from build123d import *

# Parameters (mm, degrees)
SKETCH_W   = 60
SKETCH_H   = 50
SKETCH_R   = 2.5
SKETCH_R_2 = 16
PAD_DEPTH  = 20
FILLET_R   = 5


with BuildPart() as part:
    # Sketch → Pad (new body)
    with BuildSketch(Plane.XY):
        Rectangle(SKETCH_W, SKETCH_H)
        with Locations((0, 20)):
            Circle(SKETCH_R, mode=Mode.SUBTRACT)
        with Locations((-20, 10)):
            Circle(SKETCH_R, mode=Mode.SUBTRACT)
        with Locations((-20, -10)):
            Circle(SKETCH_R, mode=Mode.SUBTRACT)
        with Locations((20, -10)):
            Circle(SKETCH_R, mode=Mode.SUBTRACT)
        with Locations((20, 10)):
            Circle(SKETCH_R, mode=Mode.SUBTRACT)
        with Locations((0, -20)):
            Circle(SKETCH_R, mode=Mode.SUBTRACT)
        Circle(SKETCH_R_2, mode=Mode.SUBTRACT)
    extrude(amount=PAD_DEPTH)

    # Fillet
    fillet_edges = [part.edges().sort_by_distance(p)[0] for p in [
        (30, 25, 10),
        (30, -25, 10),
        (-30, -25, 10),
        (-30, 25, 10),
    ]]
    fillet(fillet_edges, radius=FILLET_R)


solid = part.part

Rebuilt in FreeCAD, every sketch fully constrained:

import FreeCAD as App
import Part
import Sketcher
Q = App.Units.Quantity


def edges_at(feature, points):
    """Names of the edges that pass closest to the given points."""
    edges = feature.Shape.Edges
    near = lambda p: min(range(len(edges)), key=lambda i: edges[i].distToShape(Part.Vertex(*p))[0])
    return sorted({f"Edge{near(p) + 1}" for p in points})


def add_polygon(sketch, points):
    """Adds a closed chain of lines whose ends are joined by coincident constraints."""
    first, n = sketch.GeometryCount, len(points)
    for a, b in zip(points, points[1:] + points[:1]):
        sketch.addGeometry(Part.LineSegment(App.Vector(*a, 0), App.Vector(*b, 0)), False)
    for i in range(n):
        sketch.addConstraint(Sketcher.Constraint("Coincident", first + i, 2, first + (i + 1) % n, 1))

doc = App.newDocument("Part")
params = doc.addObject("Spreadsheet::Sheet", "Params")
for row, (alias, value) in enumerate([
    ("sketch1_diameter", "5 mm"),
    ("sketch1_diameter2", "32 mm"),
    ("sketch1_width", "60 mm"),
    ("sketch1_height", "50 mm"),
    ("pad1_length", "20 mm"),
    ("fillet_radius", "5 mm"),
], start=1):
    params.set(f"A{row}", alias)
    params.set(f"B{row}", "=" + value)
    params.setAlias(f"B{row}", alias)

body = doc.addObject("PartDesign::Body", "Body")

sketch1 = doc.addObject("Sketcher::SketchObject", "Sketch")
body.addObject(sketch1)
sketch1.AttachmentSupport = (doc.XY_Plane, [""])
sketch1.MapMode = "FlatFace"
add_polygon(sketch1, [(-30, 25), (-30, -25), (30, -25), (30, 25)])
sketch1.addGeometry(Part.Circle(App.Vector(-20, -10, 0), App.Vector(0, 0, 1), 2.5), False)
sketch1.addGeometry(Part.Circle(App.Vector(0, -20, 0), App.Vector(0, 0, 1), 2.5), False)
sketch1.addGeometry(Part.Circle(App.Vector(20, -10, 0), App.Vector(0, 0, 1), 2.5), False)
sketch1.addGeometry(Part.Circle(App.Vector(-20, 10, 0), App.Vector(0, 0, 1), 2.5), False)
sketch1.addGeometry(Part.Circle(App.Vector(0, 0, 0), App.Vector(0, 0, 1), 16), False)
sketch1.addGeometry(Part.Circle(App.Vector(20, 10, 0), App.Vector(0, 0, 1), 2.5), False)
sketch1.addGeometry(Part.Circle(App.Vector(0, 20, 0), App.Vector(0, 0, 1), 2.5), False)
sketch1.addConstraint(Sketcher.Constraint("Vertical", 0))
sketch1.addConstraint(Sketcher.Constraint("Horizontal", 1))
sketch1.addConstraint(Sketcher.Constraint("Vertical", 2))
sketch1.addConstraint(Sketcher.Constraint("Horizontal", 3))
sketch1.addConstraint(Sketcher.Constraint("Coincident", 8, 3, -1, 1))
sketch1.addConstraint(Sketcher.Constraint("Equal", 4, 5))
sketch1.addConstraint(Sketcher.Constraint("Equal", 5, 6))
sketch1.addConstraint(Sketcher.Constraint("Equal", 6, 7))
sketch1.addConstraint(Sketcher.Constraint("Equal", 7, 9))
sketch1.addConstraint(Sketcher.Constraint("Equal", 9, 10))
sketch1.addConstraint(Sketcher.Constraint("Symmetric", 6, 3, 7, 3, -1, 1))
sketch1.addConstraint(Sketcher.Constraint("Symmetric", 4, 3, 9, 3, -1, 1))
sketch1.addConstraint(Sketcher.Constraint("Symmetric", 5, 3, 10, 3, -1, 1))
sketch1.addConstraint(Sketcher.Constraint("Symmetric", 0, 2, 2, 2, -1, 1))
sketch1.addConstraint(Sketcher.Constraint("Symmetric", 4, 3, 6, 3, -2))
sketch1.addConstraint(Sketcher.Constraint("PointOnObject", 5, 3, -2))
sketch1.addConstraint(Sketcher.Constraint("Diameter", 4, Q("5 mm")))
sketch1.addConstraint(Sketcher.Constraint("Diameter", 8, Q("32 mm")))
sketch1.addConstraint(Sketcher.Constraint("DistanceX", 1, 1, 1, 2, Q("60 mm")))
sketch1.addConstraint(Sketcher.Constraint("DistanceY", 0, 2, 0, 1, Q("50 mm")))
sketch1.addConstraint(Sketcher.Constraint("DistanceX", 4, 3, -1, 1, Q("20 mm")))
sketch1.addConstraint(Sketcher.Constraint("DistanceY", 4, 3, -1, 1, Q("10 mm")))
sketch1.addConstraint(Sketcher.Constraint("DistanceY", 5, 3, -1, 1, Q("20 mm")))
sketch1.setExpression("Constraints[20]", "Params.sketch1_diameter")
sketch1.setExpression("Constraints[21]", "Params.sketch1_diameter2")
sketch1.setExpression("Constraints[22]", "Params.sketch1_width")
sketch1.setExpression("Constraints[23]", "Params.sketch1_height")
pad1 = doc.addObject("PartDesign::Pad", "Pad")
body.addObject(pad1)
pad1.Profile = sketch1
pad1.setExpression("Length", "Params.pad1_length")
doc.recompute()

fillet = doc.addObject("PartDesign::Fillet", "Fillet")
body.addObject(fillet)
fillet.Base = (pad1, edges_at(pad1, [
    (30, 25, 10),
    (30, -25, 10),
    (-30, -25, 10),
    (-30, 25, 10),
]))
fillet.setExpression("Radius", "Params.fillet_radius")

doc.recompute()
